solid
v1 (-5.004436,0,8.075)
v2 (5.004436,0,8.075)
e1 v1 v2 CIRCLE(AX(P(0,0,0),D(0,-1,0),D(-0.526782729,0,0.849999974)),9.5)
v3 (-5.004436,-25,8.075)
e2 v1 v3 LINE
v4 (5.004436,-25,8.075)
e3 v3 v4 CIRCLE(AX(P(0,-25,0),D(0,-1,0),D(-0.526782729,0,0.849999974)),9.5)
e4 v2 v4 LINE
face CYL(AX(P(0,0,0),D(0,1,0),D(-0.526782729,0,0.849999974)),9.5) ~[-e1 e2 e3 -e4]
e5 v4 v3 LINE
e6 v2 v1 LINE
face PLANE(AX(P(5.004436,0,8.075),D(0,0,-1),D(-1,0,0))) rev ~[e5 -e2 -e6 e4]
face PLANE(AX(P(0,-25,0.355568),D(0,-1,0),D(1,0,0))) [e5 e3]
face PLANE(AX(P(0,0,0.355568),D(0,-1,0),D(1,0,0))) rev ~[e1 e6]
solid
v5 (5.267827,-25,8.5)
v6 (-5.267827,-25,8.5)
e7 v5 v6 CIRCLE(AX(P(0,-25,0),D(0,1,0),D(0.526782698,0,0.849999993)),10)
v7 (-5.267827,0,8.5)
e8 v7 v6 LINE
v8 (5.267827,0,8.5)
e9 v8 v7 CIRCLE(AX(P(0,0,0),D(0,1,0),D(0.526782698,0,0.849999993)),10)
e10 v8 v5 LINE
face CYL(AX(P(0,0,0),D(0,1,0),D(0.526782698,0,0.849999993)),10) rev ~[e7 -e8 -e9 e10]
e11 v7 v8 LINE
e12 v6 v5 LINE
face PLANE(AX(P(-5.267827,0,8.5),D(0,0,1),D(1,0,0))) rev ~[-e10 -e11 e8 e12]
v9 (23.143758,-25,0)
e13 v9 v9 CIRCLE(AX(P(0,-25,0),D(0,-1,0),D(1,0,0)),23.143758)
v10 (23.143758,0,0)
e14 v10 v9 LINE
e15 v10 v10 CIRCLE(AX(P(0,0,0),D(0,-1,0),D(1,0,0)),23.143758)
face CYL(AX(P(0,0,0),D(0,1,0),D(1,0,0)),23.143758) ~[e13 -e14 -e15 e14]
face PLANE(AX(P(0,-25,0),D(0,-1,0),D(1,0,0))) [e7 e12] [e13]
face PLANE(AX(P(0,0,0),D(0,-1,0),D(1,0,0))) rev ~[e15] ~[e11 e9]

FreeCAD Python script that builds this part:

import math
import FreeCAD as App
import Part
import Sketcher
from FreeCAD import Vector
Q = App.Units.Quantity

doc = App.newDocument("Part")
params = doc.addObject("Spreadsheet::Sheet", "Params")
for row, (alias, value) in enumerate([
    ("sketch1_radius", "10 mm"),
    ("pad1_length", "25 mm"),
    ("sketch2_radius", "9.5 mm"),
    ("pad2_length", "25 mm"),
], start=1):
    params.set(f"A{row}", alias)
    params.set(f"B{row}", "=" + value)
    params.setAlias(f"B{row}", alias)

body = doc.addObject("PartDesign::Body", "Body")

sketch1 = body.newObject("Sketcher::SketchObject", "Sketch")
sketch1.AttachmentSupport = (doc.getObject("XZ_Plane"), [""])
sketch1.MapMode = "FlatFace"
sketch1.addGeometry([
    Part.Circle(Vector(0, 0, 0), Vector(0, 0, 1), 23),
    Part.LineSegment(Vector(-5, 8, 0), Vector(5, 8, 0)),
    Part.ArcOfCircle(Part.Circle(Vector(0, 0, 0), Vector(0, 0, 1), 10), math.radians(122), math.radians(418)),
], False)
sketch1.addConstraint([
    Sketcher.Constraint("Coincident", 1, 1, 2, 1),
    Sketcher.Constraint("Coincident", 2, 2, 1, 2),
    Sketcher.Constraint("Horizontal", 1),
    Sketcher.Constraint("Coincident", 0, 3, -1, 1),
    Sketcher.Constraint("Coincident", 2, 3, -1, 1),
    Sketcher.Constraint("Radius", 2, Q("10 mm")),
    Sketcher.Constraint("DistanceY", -1, 1, 1, 1, Q("8.5 mm")),
    Sketcher.Constraint("Diameter", 0, Q("46.287516 mm")),
])
sketch1.setExpression("Constraints[5]", "Params.sketch1_radius")
pad1 = body.newObject("PartDesign::Pad", "Pad")
pad1.Profile = sketch1
pad1.setExpression("Length", "Params.pad1_length")
body2 = doc.addObject("PartDesign::Body", "Body001")

sketch2 = body2.newObject("Sketcher::SketchObject", "Sketch001")
sketch2.AttachmentSupport = (doc.getObject("XZ_Plane001"), [""])
sketch2.MapMode = "FlatFace"
sketch2.addGeometry([
    Part.LineSegment(Vector(5, 8, 0), Vector(-5, 8, 0)),
    Part.ArcOfCircle(Part.Circle(Vector(0, 0, 0), Vector(0, 0, 1), 10), math.radians(122), math.radians(418)),
], False)
sketch2.addConstraint([
    Sketcher.Constraint("Coincident", 0, 1, 1, 2),
    Sketcher.Constraint("Coincident", 1, 1, 0, 2),
    Sketcher.Constraint("Horizontal", 0),
    Sketcher.Constraint("Coincident", 1, 3, -1, 1),
    Sketcher.Constraint("Radius", 1, Q("9.5 mm")),
    Sketcher.Constraint("DistanceY", -1, 1, 0, 1, Q("8.075 mm")),
])
sketch2.setExpression("Constraints[4]", "Params.sketch2_radius")
pad2 = body2.newObject("PartDesign::Pad", "Pad001")
pad2.Profile = sketch2
pad2.setExpression("Length", "Params.pad2_length")

doc.recompute()
